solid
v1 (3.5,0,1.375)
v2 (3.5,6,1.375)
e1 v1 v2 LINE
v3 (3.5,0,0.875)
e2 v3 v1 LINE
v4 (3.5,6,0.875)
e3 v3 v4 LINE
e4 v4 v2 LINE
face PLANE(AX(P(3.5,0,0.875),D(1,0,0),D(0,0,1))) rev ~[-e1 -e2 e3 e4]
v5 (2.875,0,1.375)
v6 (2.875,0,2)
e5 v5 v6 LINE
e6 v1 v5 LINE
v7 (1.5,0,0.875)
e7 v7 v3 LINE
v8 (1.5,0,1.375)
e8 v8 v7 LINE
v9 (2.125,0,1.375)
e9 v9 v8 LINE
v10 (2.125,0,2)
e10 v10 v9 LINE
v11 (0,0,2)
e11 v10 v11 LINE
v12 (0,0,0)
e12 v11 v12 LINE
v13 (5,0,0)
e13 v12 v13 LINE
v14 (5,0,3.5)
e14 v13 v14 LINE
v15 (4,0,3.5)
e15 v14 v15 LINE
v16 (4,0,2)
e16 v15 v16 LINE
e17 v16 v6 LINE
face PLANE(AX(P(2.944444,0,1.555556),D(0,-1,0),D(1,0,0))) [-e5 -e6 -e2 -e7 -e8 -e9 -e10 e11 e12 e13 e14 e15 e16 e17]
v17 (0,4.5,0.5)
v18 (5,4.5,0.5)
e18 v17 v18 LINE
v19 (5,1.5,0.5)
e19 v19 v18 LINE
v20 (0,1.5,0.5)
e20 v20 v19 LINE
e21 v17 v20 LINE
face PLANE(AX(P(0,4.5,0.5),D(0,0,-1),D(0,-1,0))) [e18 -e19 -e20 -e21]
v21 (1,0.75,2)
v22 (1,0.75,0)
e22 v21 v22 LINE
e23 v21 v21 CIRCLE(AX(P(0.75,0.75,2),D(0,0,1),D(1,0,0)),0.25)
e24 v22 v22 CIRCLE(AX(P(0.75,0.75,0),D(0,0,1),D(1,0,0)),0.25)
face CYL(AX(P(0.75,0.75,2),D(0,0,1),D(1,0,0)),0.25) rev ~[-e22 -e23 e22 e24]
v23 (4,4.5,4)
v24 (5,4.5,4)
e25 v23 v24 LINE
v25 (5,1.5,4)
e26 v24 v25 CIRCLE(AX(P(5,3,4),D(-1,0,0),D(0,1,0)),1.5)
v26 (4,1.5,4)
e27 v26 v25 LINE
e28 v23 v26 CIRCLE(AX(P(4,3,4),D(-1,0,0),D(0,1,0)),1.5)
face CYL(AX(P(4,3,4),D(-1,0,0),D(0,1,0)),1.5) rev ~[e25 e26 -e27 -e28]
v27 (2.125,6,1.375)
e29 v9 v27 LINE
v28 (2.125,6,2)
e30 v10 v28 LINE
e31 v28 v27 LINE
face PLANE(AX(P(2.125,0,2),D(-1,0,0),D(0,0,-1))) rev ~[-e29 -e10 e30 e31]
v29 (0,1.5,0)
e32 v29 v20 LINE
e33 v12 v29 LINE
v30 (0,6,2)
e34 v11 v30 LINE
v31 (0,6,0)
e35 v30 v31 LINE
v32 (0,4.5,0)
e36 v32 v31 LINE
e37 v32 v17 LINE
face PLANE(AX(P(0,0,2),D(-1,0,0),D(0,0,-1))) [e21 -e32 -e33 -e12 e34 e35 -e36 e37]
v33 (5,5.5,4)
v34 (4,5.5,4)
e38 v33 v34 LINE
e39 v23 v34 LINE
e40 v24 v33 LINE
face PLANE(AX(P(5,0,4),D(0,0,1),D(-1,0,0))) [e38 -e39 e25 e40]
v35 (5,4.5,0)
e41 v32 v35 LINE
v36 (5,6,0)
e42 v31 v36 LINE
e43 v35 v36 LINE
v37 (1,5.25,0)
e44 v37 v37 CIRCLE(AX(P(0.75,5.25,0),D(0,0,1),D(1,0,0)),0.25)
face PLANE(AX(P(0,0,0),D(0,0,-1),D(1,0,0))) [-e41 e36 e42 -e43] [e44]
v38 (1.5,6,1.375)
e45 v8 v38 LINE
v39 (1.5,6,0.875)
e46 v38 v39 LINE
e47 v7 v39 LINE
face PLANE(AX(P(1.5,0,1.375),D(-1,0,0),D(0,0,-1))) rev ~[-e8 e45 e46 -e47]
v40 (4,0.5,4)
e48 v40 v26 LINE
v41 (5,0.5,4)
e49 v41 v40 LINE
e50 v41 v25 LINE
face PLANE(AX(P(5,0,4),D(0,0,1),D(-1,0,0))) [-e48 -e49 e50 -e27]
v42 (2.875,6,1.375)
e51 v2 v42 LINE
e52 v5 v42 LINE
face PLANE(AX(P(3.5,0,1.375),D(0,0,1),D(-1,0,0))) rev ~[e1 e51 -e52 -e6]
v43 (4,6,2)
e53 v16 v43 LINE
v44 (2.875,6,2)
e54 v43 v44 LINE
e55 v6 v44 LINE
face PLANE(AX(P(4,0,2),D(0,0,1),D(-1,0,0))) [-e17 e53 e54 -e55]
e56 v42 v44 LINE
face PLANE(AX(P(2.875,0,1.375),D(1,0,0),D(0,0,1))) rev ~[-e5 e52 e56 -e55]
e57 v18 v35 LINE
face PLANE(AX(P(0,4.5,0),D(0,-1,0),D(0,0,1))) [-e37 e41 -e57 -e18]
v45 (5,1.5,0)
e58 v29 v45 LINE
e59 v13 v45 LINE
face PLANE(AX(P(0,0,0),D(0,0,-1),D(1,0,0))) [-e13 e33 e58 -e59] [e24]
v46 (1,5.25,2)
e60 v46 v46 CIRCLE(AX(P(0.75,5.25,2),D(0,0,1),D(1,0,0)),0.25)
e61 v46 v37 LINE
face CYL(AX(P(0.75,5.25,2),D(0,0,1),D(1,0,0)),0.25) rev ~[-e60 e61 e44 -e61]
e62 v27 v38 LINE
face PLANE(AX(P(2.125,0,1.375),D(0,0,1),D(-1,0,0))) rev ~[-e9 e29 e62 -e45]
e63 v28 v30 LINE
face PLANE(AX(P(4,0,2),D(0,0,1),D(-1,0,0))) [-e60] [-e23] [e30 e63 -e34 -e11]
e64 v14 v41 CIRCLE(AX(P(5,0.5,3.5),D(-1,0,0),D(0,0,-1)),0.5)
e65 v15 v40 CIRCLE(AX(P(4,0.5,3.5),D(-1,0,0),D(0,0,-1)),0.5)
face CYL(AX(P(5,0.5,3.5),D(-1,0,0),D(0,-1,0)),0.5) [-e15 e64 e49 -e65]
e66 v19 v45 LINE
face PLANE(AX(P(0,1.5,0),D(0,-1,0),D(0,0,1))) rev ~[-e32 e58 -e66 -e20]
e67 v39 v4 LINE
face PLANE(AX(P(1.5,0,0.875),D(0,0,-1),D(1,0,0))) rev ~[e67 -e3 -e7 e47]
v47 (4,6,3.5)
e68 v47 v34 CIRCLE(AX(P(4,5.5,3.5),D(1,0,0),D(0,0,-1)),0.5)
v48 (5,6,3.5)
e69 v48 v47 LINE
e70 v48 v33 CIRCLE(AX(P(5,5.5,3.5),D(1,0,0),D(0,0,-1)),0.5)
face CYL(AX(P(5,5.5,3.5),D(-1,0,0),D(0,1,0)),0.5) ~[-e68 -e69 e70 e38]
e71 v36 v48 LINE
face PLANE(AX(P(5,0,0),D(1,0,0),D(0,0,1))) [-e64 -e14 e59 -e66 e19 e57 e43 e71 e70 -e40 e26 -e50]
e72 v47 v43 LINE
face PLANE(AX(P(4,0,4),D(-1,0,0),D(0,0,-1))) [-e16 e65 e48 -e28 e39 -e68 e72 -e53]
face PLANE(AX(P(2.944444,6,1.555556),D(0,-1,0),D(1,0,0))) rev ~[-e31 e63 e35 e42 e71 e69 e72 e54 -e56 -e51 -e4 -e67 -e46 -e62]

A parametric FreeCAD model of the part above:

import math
import FreeCAD as App
import Part
import Sketcher
from FreeCAD import Vector


def edges_at(feature, points):
    """Names of the edges that pass closest to the given points."""
    edges = feature.Shape.Edges
    near = lambda p: min(range(len(edges)), key=lambda i: edges[i].distToShape(Part.Vertex(*p))[0])
    return sorted({f"Edge{near(p) + 1}" for p in points})

doc = App.newDocument("Part")
body = doc.addObject("PartDesign::Body", "Body")

sketch1 = body.newObject("Sketcher::SketchObject", "Sketch")
sketch1.AttachmentSupport = (doc.getObject("XZ_Plane"), [""])
sketch1.MapMode = "FlatFace"
sketch1.addGeometry([
    Part.LineSegment(Vector(0, 2, 0), Vector(0, 0, 0)),
    Part.LineSegment(Vector(0, 0, 0), Vector(5, 0, 0)),
    Part.LineSegment(Vector(5, 0, 0), Vector(5, 4, 0)),
    Part.LineSegment(Vector(5, 4, 0), Vector(4, 4, 0)),
    Part.LineSegment(Vector(4, 4, 0), Vector(4, 2, 0)),
    Part.LineSegment(Vector(4, 2, 0), Vector(0, 2, 0)),
], False)
sketch1.addConstraint([
    Sketcher.Constraint("Coincident", 0, 2, 1, 1),
    Sketcher.Constraint("Coincident", 1, 2, 2, 1),
    Sketcher.Constraint("Coincident", 2, 2, 3, 1),
    Sketcher.Constraint("Coincident", 3, 2, 4, 1),
    Sketcher.Constraint("Coincident", 4, 2, 5, 1),
    Sketcher.Constraint("Coincident", 5, 2, 0, 1),
    Sketcher.Constraint("Vertical", 0),
    Sketcher.Constraint("Horizontal", 1),
    Sketcher.Constraint("Vertical", 2),
    Sketcher.Constraint("Horizontal", 3),
    Sketcher.Constraint("Vertical", 4),
    Sketcher.Constraint("Horizontal", 5),
    Sketcher.Constraint("Coincident", 0, 2, -1, 1),
    Sketcher.Constraint("Equal", 5, 2),
    Sketcher.Constraint("Equal", 0, 4),
    Sketcher.Constraint("DistanceX", 1, 1, 1, 2, 5.0),
    Sketcher.Constraint("DistanceX", 3, 2, 3, 1, 1.0),
])
pad1 = body.newObject("PartDesign::Pad", "Pad")
pad1.Profile = sketch1
pad1.Length = 6
pad1.Reversed = True

sketch2 = body.newObject("Sketcher::SketchObject", "Sketch001")
sketch2.AttachmentSupport = (doc.getObject("XZ_Plane"), [""])
sketch2.MapMode = "FlatFace"
sketch2.addGeometry([
    Part.LineSegment(Vector(2.9, 2, 0), Vector(2.1, 2, 0)),
    Part.LineSegment(Vector(2.1, 2, 0), Vector(2.1, 1.4, 0)),
    Part.LineSegment(Vector(2.1, 1.4, 0), Vector(1.5, 1.4, 0)),
    Part.LineSegment(Vector(1.5, 1.4, 0), Vector(1.5, 0.9, 0)),
    Part.LineSegment(Vector(1.5, 0.9, 0), Vector(3.5, 0.9, 0)),
    Part.LineSegment(Vector(3.5, 0.9, 0), Vector(3.5, 1.4, 0)),
    Part.LineSegment(Vector(3.5, 1.4, 0), Vector(2.9, 1.4, 0)),
    Part.LineSegment(Vector(2.9, 1.4, 0), Vector(2.9, 2, 0)),
], False)
sketch2.addConstraint([
    Sketcher.Constraint("Coincident", 0, 2, 1, 1),
    Sketcher.Constraint("Coincident", 1, 2, 2, 1),
    Sketcher.Constraint("Coincident", 2, 2, 3, 1),
    Sketcher.Constraint("Coincident", 3, 2, 4, 1),
    Sketcher.Constraint("Coincident", 4, 2, 5, 1),
    Sketcher.Constraint("Coincident", 5, 2, 6, 1),
    Sketcher.Constraint("Coincident", 6, 2, 7, 1),
    Sketcher.Constraint("Coincident", 7, 2, 0, 1),
    Sketcher.Constraint("Horizontal", 0),
    Sketcher.Constraint("Vertical", 1),
    Sketcher.Constraint("Horizontal", 2),
    Sketcher.Constraint("Vertical", 3),
    Sketcher.Constraint("Horizontal", 4),
    Sketcher.Constraint("Vertical", 5),
    Sketcher.Constraint("Horizontal", 6),
    Sketcher.Constraint("Vertical", 7),
    Sketcher.Constraint("Horizontal", 2, 2, 5, 2),
    Sketcher.Constraint("Equal", 2, 6),
    Sketcher.Constraint("Equal", 6, 1),
    Sketcher.Constraint("DistanceX", 4, 1, 4, 2, 2.0),
    Sketcher.Constraint("DistanceY", 3, 2, 3, 1, 0.5),
    Sketcher.Constraint("DistanceY", -1, 1, 0, 2, 2.0),
    Sketcher.Constraint("DistanceX", 0, 2, 0, 1, 0.75),
    Sketcher.Constraint("DistanceX", -1, 1, 2, 2, 1.5),
])
pocket1 = body.newObject("PartDesign::Pocket", "Pocket")
pocket1.Profile = sketch2
pocket1.Length = 25

sketch3 = body.newObject("Sketcher::SketchObject", "Sketch002")
sketch3.AttachmentSupport = (doc.getObject("YZ_Plane"), [""])
sketch3.MapMode = "FlatFace"
sketch3.addGeometry([
    Part.LineSegment(Vector(4.5, 0.5, 0), Vector(4.5, 0, 0)),
    Part.LineSegment(Vector(4.5, 0, 0), Vector(1.5, 0, 0)),
    Part.LineSegment(Vector(1.5, 0, 0), Vector(1.5, 0.5, 0)),
    Part.LineSegment(Vector(1.5, 0.5, 0), Vector(4.5, 0.5, 0)),
], False)
sketch3.addConstraint([
    Sketcher.Constraint("Coincident", 0, 2, 1, 1),
    Sketcher.Constraint("Coincident", 1, 2, 2, 1),
    Sketcher.Constraint("Coincident", 2, 2, 3, 1),
    Sketcher.Constraint("Coincident", 3, 2, 0, 1),
    Sketcher.Constraint("Vertical", 0),
    Sketcher.Constraint("Horizontal", 1),
    Sketcher.Constraint("Vertical", 2),
    Sketcher.Constraint("Horizontal", 3),
    Sketcher.Constraint("PointOnObject", 0, 2, -1),
    Sketcher.Constraint("DistanceX", 1, 2, 1, 1, 3.0),
    Sketcher.Constraint("DistanceY", 0, 2, 0, 1, 0.5),
    Sketcher.Constraint("DistanceX", -1, 1, 0, 2, 4.5),
])
pocket2 = body.newObject("PartDesign::Pocket", "Pocket001")
pocket2.Profile = sketch3
pocket2.Length = 25
pocket2.Reversed = True

sketch4 = body.newObject("Sketcher::SketchObject", "Sketch003")
sketch4.AttachmentSupport = (doc.getObject("XY_Plane"), [""])
sketch4.MapMode = "FlatFace"
sketch4.AttachmentOffset = App.Placement(Vector(0, 0, 2), App.Rotation())
sketch4.addGeometry([
    Part.Circle(Vector(0.75, 0.75, 0), Vector(0, 0, 1), 0.25),
    Part.Circle(Vector(0.75, 5.25, 0), Vector(0, 0, 1), 0.25),
], False)
sketch4.addConstraint([
    Sketcher.Constraint("Equal", 0, 1),
    Sketcher.Constraint("Vertical", 0, 3, 1, 3),
    Sketcher.Constraint("Diameter", 0, 0.5),
    Sketcher.Constraint("DistanceY", 0, 3, 1, 3, 4.5),
    Sketcher.Constraint("DistanceX", -1, 1, 0, 3, 0.75),
    Sketcher.Constraint("DistanceY", -1, 1, 0, 3, 0.75),
])
pocket3 = body.newObject("PartDesign::Pocket", "Pocket002")
pocket3.Profile = sketch4
pocket3.Length = 25

sketch5 = body.newObject("Sketcher::SketchObject", "Sketch004")
sketch5.AttachmentSupport = (doc.getObject("YZ_Plane"), [""])
sketch5.MapMode = "FlatFace"
sketch5.AttachmentOffset = App.Placement(Vector(0, 0, 4), App.Rotation())
sketch5.addGeometry([
    Part.LineSegment(Vector(1.5, 4, 0), Vector(4.5, 4, 0)),
    Part.ArcOfCircle(Part.Circle(Vector(3, 4, 0), Vector(0, 0, 1), 1.5), math.radians(180), math.radians(360)),
], False)
sketch5.addConstraint([
    Sketcher.Constraint("Coincident", 0, 1, 1, 1),
    Sketcher.Constraint("Coincident", 1, 2, 0, 2),
    Sketcher.Constraint("Horizontal", 0),
    Sketcher.Constraint("Horizontal", 1, 3, 0, 1),
    Sketcher.Constraint("Radius", 1, 1.5),
    Sketcher.Constraint("DistanceX", -1, 1, 1, 3, 3.0),
    Sketcher.Constraint("DistanceY", -1, 1, 1, 3, 4.0),
])
pocket4 = body.newObject("PartDesign::Pocket", "Pocket003")
pocket4.Profile = sketch5
pocket4.Length = 25
pocket4.Reversed = True
doc.recompute()

fillet = body.newObject("PartDesign::Fillet", "Fillet")
fillet.Base = (pocket4, edges_at(pocket4, [(4.5, 0, 4), (4.5, 6, 4)]))
fillet.Radius = 0.5

doc.recompute()
